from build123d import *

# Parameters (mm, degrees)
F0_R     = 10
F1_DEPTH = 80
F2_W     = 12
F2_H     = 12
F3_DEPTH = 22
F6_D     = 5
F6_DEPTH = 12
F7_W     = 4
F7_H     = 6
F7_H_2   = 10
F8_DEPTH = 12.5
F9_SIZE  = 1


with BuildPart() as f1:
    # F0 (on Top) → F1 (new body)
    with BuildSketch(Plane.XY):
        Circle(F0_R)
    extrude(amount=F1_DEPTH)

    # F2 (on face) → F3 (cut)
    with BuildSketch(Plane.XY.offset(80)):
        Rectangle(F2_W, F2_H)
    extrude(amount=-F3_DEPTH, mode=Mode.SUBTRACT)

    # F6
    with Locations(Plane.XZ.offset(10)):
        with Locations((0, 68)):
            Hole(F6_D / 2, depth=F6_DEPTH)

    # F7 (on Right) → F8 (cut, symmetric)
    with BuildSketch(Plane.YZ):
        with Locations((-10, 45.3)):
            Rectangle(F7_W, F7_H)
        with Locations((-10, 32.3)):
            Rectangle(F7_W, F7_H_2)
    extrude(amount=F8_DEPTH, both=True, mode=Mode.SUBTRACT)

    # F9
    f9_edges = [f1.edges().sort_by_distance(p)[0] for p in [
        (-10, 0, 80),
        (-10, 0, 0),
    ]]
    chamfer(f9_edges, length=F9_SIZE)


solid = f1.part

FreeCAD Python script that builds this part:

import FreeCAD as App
import Part
import Sketcher
from FreeCAD import Vector


def edges_at(feature, points):
    """Names of the edges that pass closest to the given points."""
    edges = feature.Shape.Edges
    near = lambda p: min(range(len(edges)), key=lambda i: edges[i].distToShape(Part.Vertex(*p))[0])
    return sorted({f"Edge{near(p) + 1}" for p in points})


def add_polygon(sketch, points):
    """Adds a closed chain of lines whose ends are joined by coincident constraints."""
    first, n = sketch.GeometryCount, len(points)
    for a, b in zip(points, points[1:] + points[:1]):
        sketch.addGeometry(Part.LineSegment(App.Vector(*a, 0), App.Vector(*b, 0)), False)
    for i in range(n):
        sketch.addConstraint(Sketcher.Constraint("Coincident", first + i, 2, first + (i + 1) % n, 1))

doc = App.newDocument("Part")
body = doc.addObject("PartDesign::Body", "Body")

# Sketch on XY plane
sketch1 = doc.addObject("Sketcher::SketchObject", "Sketch")
body.addObject(sketch1)
sketch1.AttachmentSupport = (doc.XY_Plane, [""])
sketch1.MapMode = "FlatFace"
sketch1.addGeometry(Part.Circle(Vector(0, 0, 0), Vector(0, 0, 1), 10), False)
sketch1.addConstraint(Sketcher.Constraint("Coincident", 0, 3, -1, 1))
sketch1.addConstraint(Sketcher.Constraint("Diameter", 0, 20.0))
pad1 = doc.addObject("PartDesign::Pad", "Pad")
body.addObject(pad1)
pad1.Profile = sketch1
pad1.Length = 80

# Sketch on XY plane
sketch2 = doc.addObject("Sketcher::SketchObject", "Sketch001")
body.addObject(sketch2)
sketch2.AttachmentSupport = (doc.XY_Plane, [""])
sketch2.MapMode = "FlatFace"
sketch2.AttachmentOffset = App.Placement(Vector(0, 0, 80), App.Rotation())
add_polygon(sketch2, [(-6, 6), (-6, -6), (6, -6), (6, 6)])  # lines 0-3
sketch2.addConstraint(Sketcher.Constraint("Vertical", 0))
sketch2.addConstraint(Sketcher.Constraint("Horizontal", 1))
sketch2.addConstraint(Sketcher.Constraint("Vertical", 2))
sketch2.addConstraint(Sketcher.Constraint("Horizontal", 3))
sketch2.addConstraint(Sketcher.Constraint("Symmetric", 0, 2, 2, 2, -1, 1))
sketch2.addConstraint(Sketcher.Constraint("Equal", 3, 0))
sketch2.addConstraint(Sketcher.Constraint("DistanceX", 1, 1, 1, 2, 12.0))
pocket1 = doc.addObject("PartDesign::Pocket", "Pocket")
body.addObject(pocket1)
pocket1.Profile = sketch2
pocket1.Length = 22

# Sketch on XZ plane
sketch3 = doc.addObject("Sketcher::SketchObject", "Sketch002")
body.addObject(sketch3)
sketch3.AttachmentSupport = (doc.XZ_Plane, [""])
sketch3.MapMode = "FlatFace"
sketch3.AttachmentOffset = App.Placement(Vector(0, 0, 10), App.Rotation())
sketch3.addGeometry(Part.Circle(Vector(0, 68, 0), Vector(0, 0, 1), 2.5), False)
sketch3.addConstraint(Sketcher.Constraint("PointOnObject", 0, 3, -2))
sketch3.addConstraint(Sketcher.Constraint("Diameter", 0, 5.0))
sketch3.addConstraint(Sketcher.Constraint("DistanceY", -1, 1, 0, 3, 68.0))
doc.recompute()
hole = doc.addObject("PartDesign::Hole", "Hole")
body.addObject(hole)
hole.Profile = sketch3
hole.ThreadType = "None"
hole.Diameter = 5
hole.DepthType = "Dimension"
hole.Depth = 12
hole.DrillPoint = "Flat"

# Sketch on YZ plane
sketch4 = doc.addObject("Sketcher::SketchObject", "Sketch003")
body.addObject(sketch4)
sketch4.AttachmentSupport = (doc.YZ_Plane, [""])
sketch4.MapMode = "FlatFace"
add_polygon(sketch4, [(-12, 48.3), (-12, 42.3), (-8, 42.3), (-8, 48.3)])  # lines 0-3
add_polygon(sketch4, [(-12, 37.3), (-12, 27.3), (-8, 27.3), (-8, 37.3)])  # lines 4-7
sketch4.addConstraint(Sketcher.Constraint("Vertical", 0))
sketch4.addConstraint(Sketcher.Constraint("Horizontal", 1))
sketch4.addConstraint(Sketcher.Constraint("Vertical", 2))
sketch4.addConstraint(Sketcher.Constraint("Horizontal", 3))
sketch4.addConstraint(Sketcher.Constraint("Vertical", 4))
sketch4.addConstraint(Sketcher.Constraint("Horizontal", 5))
sketch4.addConstraint(Sketcher.Constraint("Vertical", 6))
sketch4.addConstraint(Sketcher.Constraint("Horizontal", 7))
sketch4.addConstraint(Sketcher.Constraint("Vertical", 3, 2, 4, 2))
sketch4.addConstraint(Sketcher.Constraint("Vertical", 2, 2, 5, 2))
sketch4.addConstraint(Sketcher.Constraint("DistanceX", 1, 1, 1, 2, 4.0))
sketch4.addConstraint(Sketcher.Constraint("DistanceY", 0, 2, 0, 1, 6.0))
sketch4.addConstraint(Sketcher.Constraint("DistanceY", 4, 2, 4, 1, 10.0))
sketch4.addConstraint(Sketcher.Constraint("DistanceX", 0, 2, -1, 1, 12.0))
sketch4.addConstraint(Sketcher.Constraint("DistanceY", 4, 2, 0, 2, 15.0))
sketch4.addConstraint(Sketcher.Constraint("DistanceY", -1, 1, 0, 2, 42.3))
pocket2 = doc.addObject("PartDesign::Pocket", "Pocket001")
body.addObject(pocket2)
pocket2.Profile = sketch4
pocket2.Length = 25
pocket2.Midplane = True
doc.recompute()

chamfer = doc.addObject("PartDesign::Chamfer", "Chamfer")
body.addObject(chamfer)
chamfer.Base = (pocket2, edges_at(pocket2, [(-10, 0, 80), (-10, 0, 0)]))
chamfer.Size = 1

doc.recompute()
